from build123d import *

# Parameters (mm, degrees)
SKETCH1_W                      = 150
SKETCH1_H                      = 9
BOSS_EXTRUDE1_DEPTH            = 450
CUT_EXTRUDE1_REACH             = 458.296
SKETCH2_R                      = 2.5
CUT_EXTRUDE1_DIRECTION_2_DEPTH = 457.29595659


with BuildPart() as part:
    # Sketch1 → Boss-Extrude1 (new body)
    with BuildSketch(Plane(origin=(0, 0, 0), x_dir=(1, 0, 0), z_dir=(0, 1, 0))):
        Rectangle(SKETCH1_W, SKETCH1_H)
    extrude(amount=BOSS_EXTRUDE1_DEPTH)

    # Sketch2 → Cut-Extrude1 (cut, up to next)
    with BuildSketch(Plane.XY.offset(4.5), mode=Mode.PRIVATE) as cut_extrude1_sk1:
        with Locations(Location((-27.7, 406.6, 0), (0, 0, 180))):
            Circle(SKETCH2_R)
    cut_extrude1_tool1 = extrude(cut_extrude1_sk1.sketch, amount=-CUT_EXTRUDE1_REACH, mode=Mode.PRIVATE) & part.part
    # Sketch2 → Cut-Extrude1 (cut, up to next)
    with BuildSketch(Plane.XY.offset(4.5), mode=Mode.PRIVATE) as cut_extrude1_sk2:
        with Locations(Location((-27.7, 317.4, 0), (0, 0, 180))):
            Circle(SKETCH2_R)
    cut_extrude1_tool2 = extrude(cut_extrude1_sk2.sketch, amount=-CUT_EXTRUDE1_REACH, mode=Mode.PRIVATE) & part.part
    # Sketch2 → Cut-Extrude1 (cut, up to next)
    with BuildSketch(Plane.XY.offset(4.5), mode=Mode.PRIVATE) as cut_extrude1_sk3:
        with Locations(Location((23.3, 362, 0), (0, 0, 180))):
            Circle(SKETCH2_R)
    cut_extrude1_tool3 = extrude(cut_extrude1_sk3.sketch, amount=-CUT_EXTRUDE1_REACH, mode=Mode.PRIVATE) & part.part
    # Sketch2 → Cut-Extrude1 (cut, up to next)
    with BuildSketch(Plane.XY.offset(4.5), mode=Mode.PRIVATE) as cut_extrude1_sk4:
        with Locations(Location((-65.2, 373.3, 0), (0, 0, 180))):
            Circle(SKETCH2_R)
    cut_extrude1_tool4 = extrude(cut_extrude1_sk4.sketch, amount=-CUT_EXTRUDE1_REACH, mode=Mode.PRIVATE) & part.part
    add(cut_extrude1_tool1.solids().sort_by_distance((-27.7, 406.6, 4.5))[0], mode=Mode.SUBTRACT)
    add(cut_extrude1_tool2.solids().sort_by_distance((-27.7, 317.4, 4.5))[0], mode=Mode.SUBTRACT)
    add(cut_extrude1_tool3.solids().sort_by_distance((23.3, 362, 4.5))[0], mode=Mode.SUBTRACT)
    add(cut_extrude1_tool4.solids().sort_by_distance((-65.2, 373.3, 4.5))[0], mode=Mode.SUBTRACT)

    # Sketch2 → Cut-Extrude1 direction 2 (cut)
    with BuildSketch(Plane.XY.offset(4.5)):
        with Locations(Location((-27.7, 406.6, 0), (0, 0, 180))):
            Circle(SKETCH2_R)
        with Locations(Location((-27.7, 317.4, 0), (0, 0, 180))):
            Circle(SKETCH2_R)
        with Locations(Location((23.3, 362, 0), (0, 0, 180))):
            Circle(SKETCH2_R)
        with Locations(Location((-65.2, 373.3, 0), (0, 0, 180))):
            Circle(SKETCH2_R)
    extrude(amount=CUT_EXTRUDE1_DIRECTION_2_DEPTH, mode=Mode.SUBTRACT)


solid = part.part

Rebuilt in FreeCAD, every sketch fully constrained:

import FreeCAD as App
import Part
import Sketcher
from FreeCAD import Vector


def add_polygon(sketch, points):
    """Adds a closed chain of lines whose ends are joined by coincident constraints."""
    first, n = sketch.GeometryCount, len(points)
    for a, b in zip(points, points[1:] + points[:1]):
        sketch.addGeometry(Part.LineSegment(App.Vector(*a, 0), App.Vector(*b, 0)), False)
    for i in range(n):
        sketch.addConstraint(Sketcher.Constraint("Coincident", first + i, 2, first + (i + 1) % n, 1))

doc = App.newDocument("Part")
params = doc.addObject("Spreadsheet::Sheet", "Params")
for row, (alias, value) in enumerate([
    ("sketch1_width", "150 mm"),
    ("sketch1_height", "9 mm"),
    ("pad1_length", "450 mm"),
    ("sketch2_diameter", "5 mm"),
    ("sketch3_diameter", "5 mm"),
    ("sketch4_diameter", "5 mm"),
    ("sketch5_diameter", "5 mm"),
    ("sketch6_diameter", "5 mm"),
    ("pocket5_length", "457.295957 mm"),
], start=1):
    params.set(f"A{row}", alias)
    params.set(f"B{row}", "=" + value)
    params.setAlias(f"B{row}", alias)

body = doc.addObject("PartDesign::Body", "Body")

sketch1 = body.newObject("Sketcher::SketchObject", "Sketch")
sketch1.AttachmentSupport = (doc.getObject("XZ_Plane"), [""])
sketch1.MapMode = "FlatFace"
add_polygon(sketch1, [(-75, -4), (-75, 4), (75, 4), (75, -4)])
sketch1.addConstraint(Sketcher.Constraint("Vertical", 0))
sketch1.addConstraint(Sketcher.Constraint("Horizontal", 1))
sketch1.addConstraint(Sketcher.Constraint("Vertical", 2))
sketch1.addConstraint(Sketcher.Constraint("Horizontal", 3))
sketch1.addConstraint(Sketcher.Constraint("Symmetric", 0, 2, 2, 2, -1, 1))
sketch1.addConstraint(Sketcher.Constraint("DistanceX", 1, 1, 1, 2, 150.0))
sketch1.addConstraint(Sketcher.Constraint("DistanceY", 0, 1, 0, 2, 9.0))
sketch1.setExpression("Constraints[9]", "Params.sketch1_width")
sketch1.setExpression("Constraints[10]", "Params.sketch1_height")
pad1 = body.newObject("PartDesign::Pad", "Pad")
pad1.Profile = sketch1
pad1.setExpression("Length", "Params.pad1_length")
pad1.Reversed = True

sketch2 = body.newObject("Sketcher::SketchObject", "Sketch001")
sketch2.AttachmentSupport = (doc.getObject("XY_Plane"), [""])
sketch2.MapMode = "FlatFace"
sketch2.AttachmentOffset = App.Placement(Vector(0, 0, 4.5), App.Rotation())
sketch2.addGeometry(Part.Circle(Vector(-27.7, 406.6, 0), Vector(0, 0, 1), 2.5), False)
sketch2.addConstraint(Sketcher.Constraint("Diameter", 0, 5.0))
sketch2.addConstraint(Sketcher.Constraint("DistanceX", 0, 3, -1, 1, 27.7))
sketch2.addConstraint(Sketcher.Constraint("DistanceY", -1, 1, 0, 3, 406.6))
sketch2.setExpression("Constraints[0]", "Params.sketch2_diameter")
pocket1 = body.newObject("PartDesign::Pocket", "Pocket")
pocket1.Profile = sketch2
pocket1.Type = "UpToFirst"

sketch3 = body.newObject("Sketcher::SketchObject", "Sketch002")
sketch3.AttachmentSupport = (doc.getObject("XY_Plane"), [""])
sketch3.MapMode = "FlatFace"
sketch3.AttachmentOffset = App.Placement(Vector(0, 0, 4.5), App.Rotation())
sketch3.addGeometry(Part.Circle(Vector(-27.7, 317.4, 0), Vector(0, 0, 1), 2.5), False)
sketch3.addConstraint(Sketcher.Constraint("Diameter", 0, 5.0))
sketch3.addConstraint(Sketcher.Constraint("DistanceX", 0, 3, -1, 1, 27.7))
sketch3.addConstraint(Sketcher.Constraint("DistanceY", -1, 1, 0, 3, 317.4))
sketch3.setExpression("Constraints[0]", "Params.sketch3_diameter")
pocket2 = body.newObject("PartDesign::Pocket", "Pocket001")
pocket2.Profile = sketch3
pocket2.Type = "UpToFirst"

sketch4 = body.newObject("Sketcher::SketchObject", "Sketch003")
sketch4.AttachmentSupport = (doc.getObject("XY_Plane"), [""])
sketch4.MapMode = "FlatFace"
sketch4.AttachmentOffset = App.Placement(Vector(0, 0, 4.5), App.Rotation())
sketch4.addGeometry(Part.Circle(Vector(23.3, 362, 0), Vector(0, 0, 1), 2.5), False)
sketch4.addConstraint(Sketcher.Constraint("Diameter", 0, 5.0))
sketch4.addConstraint(Sketcher.Constraint("DistanceY", -1, 1, 0, 3, 362.0))
sketch4.addConstraint(Sketcher.Constraint("DistanceX", -1, 1, 0, 3, 23.3))
sketch4.setExpression("Constraints[0]", "Params.sketch4_diameter")
pocket3 = body.newObject("PartDesign::Pocket", "Pocket002")
pocket3.Profile = sketch4
pocket3.Type = "UpToFirst"

sketch5 = body.newObject("Sketcher::SketchObject", "Sketch004")
sketch5.AttachmentSupport = (doc.getObject("XY_Plane"), [""])
sketch5.MapMode = "FlatFace"
sketch5.AttachmentOffset = App.Placement(Vector(0, 0, 4.5), App.Rotation())
sketch5.addGeometry(Part.Circle(Vector(-65.2, 373.3, 0), Vector(0, 0, 1), 2.5), False)
sketch5.addConstraint(Sketcher.Constraint("Diameter", 0, 5.0))
sketch5.addConstraint(Sketcher.Constraint("DistanceX", 0, 3, -1, 1, 65.2))
sketch5.addConstraint(Sketcher.Constraint("DistanceY", -1, 1, 0, 3, 373.3))
sketch5.setExpression("Constraints[0]", "Params.sketch5_diameter")
pocket4 = body.newObject("PartDesign::Pocket", "Pocket003")
pocket4.Profile = sketch5
pocket4.Type = "UpToFirst"

sketch6 = body.newObject("Sketcher::SketchObject", "Sketch005")
sketch6.AttachmentSupport = (doc.getObject("XY_Plane"), [""])
sketch6.MapMode = "FlatFace"
sketch6.AttachmentOffset = App.Placement(Vector(0, 0, 4.5), App.Rotation())
sketch6.addGeometry(Part.Circle(Vector(-27.7, 406.6, 0), Vector(0, 0, 1), 2.5), False)
sketch6.addGeometry(Part.Circle(Vector(-27.7, 317.4, 0), Vector(0, 0, 1), 2.5), False)
sketch6.addGeometry(Part.Circle(Vector(23.3, 362, 0), Vector(0, 0, 1), 2.5), False)
sketch6.addGeometry(Part.Circle(Vector(-65.2, 373.3, 0), Vector(0, 0, 1), 2.5), False)
sketch6.addConstraint(Sketcher.Constraint("Equal", 0, 1))
sketch6.addConstraint(Sketcher.Constraint("Equal", 1, 2))
sketch6.addConstraint(Sketcher.Constraint("Equal", 2, 3))
sketch6.addConstraint(Sketcher.Constraint("Vertical", 0, 3, 1, 3))
sketch6.addConstraint(Sketcher.Constraint("Diameter", 0, 5.0))
sketch6.addConstraint(Sketcher.Constraint("DistanceY", -1, 1, 2, 3, 362.0))
sketch6.addConstraint(Sketcher.Constraint("DistanceX", 0, 3, 2, 3, 51.0))
sketch6.addConstraint(Sketcher.Constraint("DistanceX", 0, 3, -1, 1, 27.7))
sketch6.addConstraint(Sketcher.Constraint("DistanceY", -1, 1, 0, 3, 406.6))
sketch6.addConstraint(Sketcher.Constraint("DistanceY", -1, 1, 1, 3, 317.4))
sketch6.addConstraint(Sketcher.Constraint("DistanceX", 3, 3, -1, 1, 65.2))
sketch6.addConstraint(Sketcher.Constraint("DistanceY", -1, 1, 3, 3, 373.3))
sketch6.setExpression("Constraints[4]", "Params.sketch6_diameter")
pocket5 = body.newObject("PartDesign::Pocket", "Pocket004")
pocket5.Profile = sketch6
pocket5.setExpression("Length", "Params.pocket5_length")
pocket5.Reversed = True

doc.recompute()
